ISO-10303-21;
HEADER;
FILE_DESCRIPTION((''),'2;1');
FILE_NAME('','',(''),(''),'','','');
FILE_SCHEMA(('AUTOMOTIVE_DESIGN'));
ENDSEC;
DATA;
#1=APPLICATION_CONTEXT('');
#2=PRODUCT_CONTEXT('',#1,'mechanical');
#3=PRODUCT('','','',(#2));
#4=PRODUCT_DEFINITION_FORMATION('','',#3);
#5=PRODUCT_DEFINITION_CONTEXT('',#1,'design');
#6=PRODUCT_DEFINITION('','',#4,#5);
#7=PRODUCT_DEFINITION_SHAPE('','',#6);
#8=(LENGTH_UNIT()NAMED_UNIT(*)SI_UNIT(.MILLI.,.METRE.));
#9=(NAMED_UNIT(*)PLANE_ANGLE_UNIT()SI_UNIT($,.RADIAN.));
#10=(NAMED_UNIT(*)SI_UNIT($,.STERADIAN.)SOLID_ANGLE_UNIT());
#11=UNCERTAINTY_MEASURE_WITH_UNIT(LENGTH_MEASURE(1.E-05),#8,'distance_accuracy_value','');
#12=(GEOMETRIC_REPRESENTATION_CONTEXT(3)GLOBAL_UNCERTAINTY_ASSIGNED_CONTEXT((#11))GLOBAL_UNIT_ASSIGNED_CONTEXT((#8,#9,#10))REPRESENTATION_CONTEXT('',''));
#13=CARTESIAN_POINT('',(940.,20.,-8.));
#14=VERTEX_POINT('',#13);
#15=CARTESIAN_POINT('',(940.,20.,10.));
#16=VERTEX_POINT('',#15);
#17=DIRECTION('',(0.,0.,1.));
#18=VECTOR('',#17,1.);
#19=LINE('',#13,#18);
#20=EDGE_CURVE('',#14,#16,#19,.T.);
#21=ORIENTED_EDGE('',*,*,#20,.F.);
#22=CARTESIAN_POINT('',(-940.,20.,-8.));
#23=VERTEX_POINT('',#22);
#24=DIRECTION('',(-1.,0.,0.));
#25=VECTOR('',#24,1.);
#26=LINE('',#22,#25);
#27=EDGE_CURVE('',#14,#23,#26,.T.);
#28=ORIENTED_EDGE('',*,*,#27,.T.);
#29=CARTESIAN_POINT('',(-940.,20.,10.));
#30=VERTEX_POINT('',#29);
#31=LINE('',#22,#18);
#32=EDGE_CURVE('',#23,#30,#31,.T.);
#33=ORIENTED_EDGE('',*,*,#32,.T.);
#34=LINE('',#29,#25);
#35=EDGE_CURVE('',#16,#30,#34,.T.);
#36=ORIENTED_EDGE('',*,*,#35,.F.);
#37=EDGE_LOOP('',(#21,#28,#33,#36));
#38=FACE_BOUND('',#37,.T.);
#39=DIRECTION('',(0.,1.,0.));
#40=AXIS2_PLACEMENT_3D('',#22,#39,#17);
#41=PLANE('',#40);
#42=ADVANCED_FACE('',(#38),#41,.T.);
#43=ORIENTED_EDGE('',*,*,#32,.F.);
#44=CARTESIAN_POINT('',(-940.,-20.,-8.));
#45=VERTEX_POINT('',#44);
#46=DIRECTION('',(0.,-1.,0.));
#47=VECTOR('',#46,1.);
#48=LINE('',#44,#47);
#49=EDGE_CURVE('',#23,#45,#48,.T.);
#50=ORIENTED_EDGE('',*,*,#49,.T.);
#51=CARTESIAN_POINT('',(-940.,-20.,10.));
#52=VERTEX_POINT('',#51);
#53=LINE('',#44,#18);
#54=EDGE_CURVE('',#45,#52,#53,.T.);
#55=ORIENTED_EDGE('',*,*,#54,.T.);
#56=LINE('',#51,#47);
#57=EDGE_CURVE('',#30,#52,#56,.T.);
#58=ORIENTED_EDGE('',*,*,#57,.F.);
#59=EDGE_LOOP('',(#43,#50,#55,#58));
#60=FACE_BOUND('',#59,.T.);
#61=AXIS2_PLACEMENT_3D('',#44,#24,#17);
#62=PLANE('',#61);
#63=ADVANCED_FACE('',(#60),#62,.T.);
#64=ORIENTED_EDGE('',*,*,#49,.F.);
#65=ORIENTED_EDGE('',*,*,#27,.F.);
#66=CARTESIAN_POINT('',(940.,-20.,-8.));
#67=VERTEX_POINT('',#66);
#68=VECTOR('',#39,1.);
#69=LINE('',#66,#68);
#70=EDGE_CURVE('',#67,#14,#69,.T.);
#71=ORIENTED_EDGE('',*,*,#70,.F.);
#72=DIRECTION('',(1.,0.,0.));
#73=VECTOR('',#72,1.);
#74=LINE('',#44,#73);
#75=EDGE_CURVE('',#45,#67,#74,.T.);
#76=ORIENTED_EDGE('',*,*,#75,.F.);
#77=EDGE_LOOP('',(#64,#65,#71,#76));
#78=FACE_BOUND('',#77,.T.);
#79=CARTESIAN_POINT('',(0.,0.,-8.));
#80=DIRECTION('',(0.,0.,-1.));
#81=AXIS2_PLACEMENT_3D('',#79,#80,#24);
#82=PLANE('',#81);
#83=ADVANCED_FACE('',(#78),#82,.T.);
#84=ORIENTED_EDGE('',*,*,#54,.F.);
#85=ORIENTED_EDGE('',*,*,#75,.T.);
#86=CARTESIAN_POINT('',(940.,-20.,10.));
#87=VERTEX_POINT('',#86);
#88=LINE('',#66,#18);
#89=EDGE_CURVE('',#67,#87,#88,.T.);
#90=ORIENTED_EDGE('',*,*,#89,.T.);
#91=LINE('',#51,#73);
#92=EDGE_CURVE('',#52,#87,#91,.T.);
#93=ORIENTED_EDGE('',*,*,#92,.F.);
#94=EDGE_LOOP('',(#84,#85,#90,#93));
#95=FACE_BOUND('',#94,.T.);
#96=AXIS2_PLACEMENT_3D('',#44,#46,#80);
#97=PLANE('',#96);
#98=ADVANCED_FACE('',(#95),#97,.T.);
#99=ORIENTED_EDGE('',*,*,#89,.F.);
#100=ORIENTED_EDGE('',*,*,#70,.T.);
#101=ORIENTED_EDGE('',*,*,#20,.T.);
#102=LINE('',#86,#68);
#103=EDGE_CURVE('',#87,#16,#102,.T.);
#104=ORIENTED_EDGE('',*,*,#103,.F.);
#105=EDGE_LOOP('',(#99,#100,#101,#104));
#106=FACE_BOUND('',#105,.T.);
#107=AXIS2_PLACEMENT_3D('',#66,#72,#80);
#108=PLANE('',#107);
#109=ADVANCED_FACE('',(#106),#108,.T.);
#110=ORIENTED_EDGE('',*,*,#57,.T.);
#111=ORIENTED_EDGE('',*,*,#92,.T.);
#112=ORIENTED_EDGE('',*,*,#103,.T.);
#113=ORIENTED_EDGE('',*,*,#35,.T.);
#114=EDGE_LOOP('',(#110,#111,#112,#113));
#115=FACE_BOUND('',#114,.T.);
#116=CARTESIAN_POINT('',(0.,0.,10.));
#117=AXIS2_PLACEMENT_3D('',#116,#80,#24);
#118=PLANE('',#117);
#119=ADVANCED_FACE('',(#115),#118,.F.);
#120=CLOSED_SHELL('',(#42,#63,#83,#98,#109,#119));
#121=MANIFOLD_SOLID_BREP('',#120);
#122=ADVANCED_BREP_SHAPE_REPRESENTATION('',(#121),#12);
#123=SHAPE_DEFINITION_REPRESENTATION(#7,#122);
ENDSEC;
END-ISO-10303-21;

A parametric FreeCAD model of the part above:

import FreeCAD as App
import Part
import Sketcher
from FreeCAD import Vector
Q = App.Units.Quantity


def add_polygon(sketch, points):
    """Adds a closed chain of lines whose ends are joined by coincident constraints."""
    first, n = sketch.GeometryCount, len(points)
    for a, b in zip(points, points[1:] + points[:1]):
        sketch.addGeometry(Part.LineSegment(App.Vector(*a, 0), App.Vector(*b, 0)), False)
    for i in range(n):
        sketch.addConstraint(Sketcher.Constraint("Coincident", first + i, 2, first + (i + 1) % n, 1))

doc = App.newDocument("Part")
body = doc.addObject("PartDesign::Body", "Body")

sketch1 = doc.addObject("Sketcher::SketchObject", "Sketch")
body.addObject(sketch1)
sketch1.AttachmentSupport = (doc.XY_Plane, [""])
sketch1.MapMode = "FlatFace"
add_polygon(sketch1, [(-940, 20), (-940, -20), (940, -20), (940, 20)])
sketch1.addConstraint([
    Sketcher.Constraint("Vertical", 0),
    Sketcher.Constraint("Horizontal", 1),
    Sketcher.Constraint("Vertical", 2),
    Sketcher.Constraint("Horizontal", 3),
    Sketcher.Constraint("Symmetric", 0, 2, 2, 2, -1, 1),
    Sketcher.Constraint("DistanceX", 1, 1, 1, 2, Q("1880 mm")),
    Sketcher.Constraint("DistanceY", 0, 2, 0, 1, Q("40 mm")),
])
pad1 = doc.addObject("PartDesign::Pad", "Pad")
body.addObject(pad1)
pad1.Profile = sketch1
pad1.Type = "TwoLengths"
pad1.Length = 10
pad1.Length2 = 8

doc.recompute()
